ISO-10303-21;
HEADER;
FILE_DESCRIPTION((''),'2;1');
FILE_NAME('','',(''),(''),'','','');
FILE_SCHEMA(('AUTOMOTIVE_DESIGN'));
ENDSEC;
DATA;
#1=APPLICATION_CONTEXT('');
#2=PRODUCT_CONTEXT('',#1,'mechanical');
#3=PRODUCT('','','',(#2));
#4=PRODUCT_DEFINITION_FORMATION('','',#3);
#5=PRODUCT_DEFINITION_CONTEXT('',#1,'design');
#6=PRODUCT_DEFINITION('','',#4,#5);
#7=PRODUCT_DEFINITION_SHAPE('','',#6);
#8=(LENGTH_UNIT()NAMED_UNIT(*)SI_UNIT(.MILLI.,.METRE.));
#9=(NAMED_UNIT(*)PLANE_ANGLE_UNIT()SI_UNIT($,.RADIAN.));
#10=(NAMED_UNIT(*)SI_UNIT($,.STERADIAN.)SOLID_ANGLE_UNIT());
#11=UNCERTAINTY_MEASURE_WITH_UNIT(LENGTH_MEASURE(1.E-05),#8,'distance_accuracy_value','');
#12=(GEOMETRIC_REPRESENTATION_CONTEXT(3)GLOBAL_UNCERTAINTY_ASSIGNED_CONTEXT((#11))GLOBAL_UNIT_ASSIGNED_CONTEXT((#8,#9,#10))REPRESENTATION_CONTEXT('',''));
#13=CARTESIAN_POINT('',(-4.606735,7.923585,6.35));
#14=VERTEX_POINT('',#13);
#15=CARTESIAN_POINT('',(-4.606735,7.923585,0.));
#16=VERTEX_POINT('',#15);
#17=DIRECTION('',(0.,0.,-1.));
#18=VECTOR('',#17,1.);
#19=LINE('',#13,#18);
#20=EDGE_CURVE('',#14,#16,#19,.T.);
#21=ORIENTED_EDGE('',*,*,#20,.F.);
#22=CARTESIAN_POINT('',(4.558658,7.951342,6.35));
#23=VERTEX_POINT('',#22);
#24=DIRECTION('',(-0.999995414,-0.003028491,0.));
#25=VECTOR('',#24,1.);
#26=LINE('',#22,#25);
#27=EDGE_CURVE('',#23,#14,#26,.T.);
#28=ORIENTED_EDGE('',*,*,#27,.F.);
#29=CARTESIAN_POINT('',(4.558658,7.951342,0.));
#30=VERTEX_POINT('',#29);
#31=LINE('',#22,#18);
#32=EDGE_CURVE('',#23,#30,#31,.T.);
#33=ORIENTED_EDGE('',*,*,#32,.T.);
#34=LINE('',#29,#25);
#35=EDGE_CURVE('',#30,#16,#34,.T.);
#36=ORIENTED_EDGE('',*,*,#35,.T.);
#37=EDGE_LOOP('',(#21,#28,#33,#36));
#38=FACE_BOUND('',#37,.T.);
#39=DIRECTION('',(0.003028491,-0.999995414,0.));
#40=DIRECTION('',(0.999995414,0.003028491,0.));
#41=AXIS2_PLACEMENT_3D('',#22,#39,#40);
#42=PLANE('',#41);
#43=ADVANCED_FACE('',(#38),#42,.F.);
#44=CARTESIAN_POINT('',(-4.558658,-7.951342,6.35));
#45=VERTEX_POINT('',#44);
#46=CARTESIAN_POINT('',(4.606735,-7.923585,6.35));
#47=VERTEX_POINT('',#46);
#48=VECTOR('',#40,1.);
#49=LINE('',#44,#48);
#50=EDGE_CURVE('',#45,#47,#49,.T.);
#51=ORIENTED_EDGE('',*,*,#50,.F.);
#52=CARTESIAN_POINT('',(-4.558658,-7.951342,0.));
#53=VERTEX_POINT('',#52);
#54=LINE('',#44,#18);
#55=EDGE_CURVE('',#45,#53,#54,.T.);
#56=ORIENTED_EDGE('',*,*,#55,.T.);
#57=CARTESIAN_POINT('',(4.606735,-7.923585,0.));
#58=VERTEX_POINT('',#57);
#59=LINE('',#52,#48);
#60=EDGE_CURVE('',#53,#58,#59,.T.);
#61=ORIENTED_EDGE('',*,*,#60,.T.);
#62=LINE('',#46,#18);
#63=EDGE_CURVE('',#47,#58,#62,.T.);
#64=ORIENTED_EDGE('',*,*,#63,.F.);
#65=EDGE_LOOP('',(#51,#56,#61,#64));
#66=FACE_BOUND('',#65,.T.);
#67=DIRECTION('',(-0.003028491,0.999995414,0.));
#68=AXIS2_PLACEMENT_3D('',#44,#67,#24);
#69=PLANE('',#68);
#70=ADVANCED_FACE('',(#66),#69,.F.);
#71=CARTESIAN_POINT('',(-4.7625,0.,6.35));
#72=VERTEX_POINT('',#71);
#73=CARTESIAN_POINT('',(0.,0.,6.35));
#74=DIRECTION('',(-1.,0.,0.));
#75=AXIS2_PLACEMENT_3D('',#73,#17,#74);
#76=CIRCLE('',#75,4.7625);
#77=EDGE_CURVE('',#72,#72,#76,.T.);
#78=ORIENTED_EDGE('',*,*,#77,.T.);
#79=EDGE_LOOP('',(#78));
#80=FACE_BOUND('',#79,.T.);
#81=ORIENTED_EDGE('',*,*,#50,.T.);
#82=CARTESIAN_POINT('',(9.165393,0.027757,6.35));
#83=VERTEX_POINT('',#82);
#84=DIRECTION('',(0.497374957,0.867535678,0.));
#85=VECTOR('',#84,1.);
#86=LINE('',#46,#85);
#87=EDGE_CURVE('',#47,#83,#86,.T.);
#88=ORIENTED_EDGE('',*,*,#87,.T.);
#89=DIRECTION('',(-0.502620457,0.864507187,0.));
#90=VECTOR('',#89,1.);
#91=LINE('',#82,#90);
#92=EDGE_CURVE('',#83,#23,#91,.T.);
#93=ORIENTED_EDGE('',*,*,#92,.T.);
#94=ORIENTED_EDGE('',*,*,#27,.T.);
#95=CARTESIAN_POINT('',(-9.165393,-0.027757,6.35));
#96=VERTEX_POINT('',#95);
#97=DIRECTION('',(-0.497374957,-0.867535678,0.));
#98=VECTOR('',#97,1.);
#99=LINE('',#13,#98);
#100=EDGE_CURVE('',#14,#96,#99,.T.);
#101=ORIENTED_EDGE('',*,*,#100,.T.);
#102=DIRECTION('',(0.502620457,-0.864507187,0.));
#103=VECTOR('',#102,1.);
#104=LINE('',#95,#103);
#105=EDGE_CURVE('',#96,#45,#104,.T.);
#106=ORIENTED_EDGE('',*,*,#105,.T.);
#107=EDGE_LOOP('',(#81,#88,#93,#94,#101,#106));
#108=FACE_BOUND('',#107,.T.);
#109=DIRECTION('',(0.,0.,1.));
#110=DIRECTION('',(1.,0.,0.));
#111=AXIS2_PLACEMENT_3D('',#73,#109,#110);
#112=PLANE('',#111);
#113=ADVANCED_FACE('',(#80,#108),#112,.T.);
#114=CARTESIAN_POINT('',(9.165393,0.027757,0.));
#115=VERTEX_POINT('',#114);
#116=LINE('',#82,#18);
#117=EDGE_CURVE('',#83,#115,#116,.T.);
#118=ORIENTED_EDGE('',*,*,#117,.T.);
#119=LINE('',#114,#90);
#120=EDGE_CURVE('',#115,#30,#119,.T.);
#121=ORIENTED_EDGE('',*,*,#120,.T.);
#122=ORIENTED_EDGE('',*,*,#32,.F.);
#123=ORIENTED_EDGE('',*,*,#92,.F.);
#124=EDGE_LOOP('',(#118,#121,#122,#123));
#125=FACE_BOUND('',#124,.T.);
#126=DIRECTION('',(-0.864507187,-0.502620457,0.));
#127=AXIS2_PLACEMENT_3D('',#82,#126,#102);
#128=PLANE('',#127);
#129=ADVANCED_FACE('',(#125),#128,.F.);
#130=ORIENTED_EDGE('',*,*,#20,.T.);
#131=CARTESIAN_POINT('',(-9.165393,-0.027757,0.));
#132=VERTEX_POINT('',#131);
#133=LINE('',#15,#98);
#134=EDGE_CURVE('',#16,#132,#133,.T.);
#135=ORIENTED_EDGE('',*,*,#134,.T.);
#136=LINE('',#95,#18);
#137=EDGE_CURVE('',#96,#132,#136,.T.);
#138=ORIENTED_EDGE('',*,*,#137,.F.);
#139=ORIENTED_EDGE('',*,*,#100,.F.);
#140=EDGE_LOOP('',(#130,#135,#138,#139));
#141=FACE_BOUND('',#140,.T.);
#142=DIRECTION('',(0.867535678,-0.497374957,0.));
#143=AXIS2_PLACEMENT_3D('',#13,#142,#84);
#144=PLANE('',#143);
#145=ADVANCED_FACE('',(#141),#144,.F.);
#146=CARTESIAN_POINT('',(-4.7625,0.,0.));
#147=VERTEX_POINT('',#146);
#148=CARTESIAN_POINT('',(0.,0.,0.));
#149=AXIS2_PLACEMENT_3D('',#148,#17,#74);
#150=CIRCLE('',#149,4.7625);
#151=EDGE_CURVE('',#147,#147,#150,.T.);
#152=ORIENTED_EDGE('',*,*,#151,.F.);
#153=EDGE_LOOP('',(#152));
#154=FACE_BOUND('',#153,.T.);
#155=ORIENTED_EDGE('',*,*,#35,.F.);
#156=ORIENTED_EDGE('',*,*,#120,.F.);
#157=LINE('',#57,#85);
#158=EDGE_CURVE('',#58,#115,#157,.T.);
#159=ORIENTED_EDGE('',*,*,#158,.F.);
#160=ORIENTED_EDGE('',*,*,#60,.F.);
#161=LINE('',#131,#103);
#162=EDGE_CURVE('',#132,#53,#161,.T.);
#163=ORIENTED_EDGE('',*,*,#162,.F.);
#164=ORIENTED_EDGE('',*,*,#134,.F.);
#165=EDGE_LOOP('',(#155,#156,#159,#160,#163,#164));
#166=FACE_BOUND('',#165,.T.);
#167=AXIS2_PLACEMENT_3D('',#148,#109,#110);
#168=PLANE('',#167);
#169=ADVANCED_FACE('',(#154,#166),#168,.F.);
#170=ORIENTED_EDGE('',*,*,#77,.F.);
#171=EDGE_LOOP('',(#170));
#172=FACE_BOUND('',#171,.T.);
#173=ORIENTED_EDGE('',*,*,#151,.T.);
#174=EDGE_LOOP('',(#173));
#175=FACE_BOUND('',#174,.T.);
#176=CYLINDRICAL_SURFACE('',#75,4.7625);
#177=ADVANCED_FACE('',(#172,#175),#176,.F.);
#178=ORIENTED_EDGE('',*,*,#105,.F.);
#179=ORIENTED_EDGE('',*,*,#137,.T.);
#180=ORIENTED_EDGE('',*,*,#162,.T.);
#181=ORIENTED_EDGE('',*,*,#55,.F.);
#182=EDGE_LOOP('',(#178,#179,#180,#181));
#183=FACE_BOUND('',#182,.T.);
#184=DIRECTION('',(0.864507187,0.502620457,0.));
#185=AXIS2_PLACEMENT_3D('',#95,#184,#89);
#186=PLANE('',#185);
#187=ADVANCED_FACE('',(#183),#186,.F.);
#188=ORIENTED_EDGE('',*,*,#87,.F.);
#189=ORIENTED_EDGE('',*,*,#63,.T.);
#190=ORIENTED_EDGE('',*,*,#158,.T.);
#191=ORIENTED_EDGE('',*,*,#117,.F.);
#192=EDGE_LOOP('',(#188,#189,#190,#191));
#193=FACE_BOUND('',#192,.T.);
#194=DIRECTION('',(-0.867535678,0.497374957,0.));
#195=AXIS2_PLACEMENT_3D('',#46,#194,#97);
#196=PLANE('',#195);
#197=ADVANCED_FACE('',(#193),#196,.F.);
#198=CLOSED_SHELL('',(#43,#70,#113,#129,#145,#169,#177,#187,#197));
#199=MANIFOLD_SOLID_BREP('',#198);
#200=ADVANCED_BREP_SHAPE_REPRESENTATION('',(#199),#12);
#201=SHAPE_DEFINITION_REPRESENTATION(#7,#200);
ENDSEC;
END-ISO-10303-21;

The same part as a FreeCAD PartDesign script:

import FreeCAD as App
import Part
import Sketcher
Q = App.Units.Quantity


def add_polygon(sketch, points):
    """Adds a closed chain of lines whose ends are joined by coincident constraints."""
    first, n = sketch.GeometryCount, len(points)
    for a, b in zip(points, points[1:] + points[:1]):
        sketch.addGeometry(Part.LineSegment(App.Vector(*a, 0), App.Vector(*b, 0)), False)
    for i in range(n):
        sketch.addConstraint(Sketcher.Constraint("Coincident", first + i, 2, first + (i + 1) % n, 1))

doc = App.newDocument("Part")
body = doc.addObject("PartDesign::Body", "Body")

sketch1 = body.newObject("Sketcher::SketchObject", "Sketch")
sketch1.AttachmentSupport = (doc.getObject("XY_Plane"), [""])
sketch1.MapMode = "FlatFace"
add_polygon(sketch1, [(4.606735, -7.923585), (9.165393, 0.027757), (4.558658, 7.951342), (-4.606735, 7.923585), (-9.165393, -0.027757), (-4.558658, -7.951342)])
sketch1.addConstraint(Sketcher.Constraint("Symmetric", 0, 2, 3, 2, -1, 1))
sketch1.addConstraint(Sketcher.Constraint("Symmetric", 1, 2, 4, 2, -1, 1))
sketch1.addConstraint(Sketcher.Constraint("Symmetric", 2, 2, 5, 2, -1, 1))
sketch1.addConstraint(Sketcher.Constraint("Equal", 0, 1))
sketch1.addConstraint(Sketcher.Constraint("Equal", 1, 2))
sketch1.addConstraint(Sketcher.Constraint("DistanceY", 3, 2, 1, 2, Q("7.9791 mm")))
sketch1.addConstraint(Sketcher.Constraint("DistanceX", -1, 1, 1, 2, Q("4.558658 mm")))
sketch1.addConstraint(Sketcher.Constraint("DistanceX", 2, 2, 0, 2, Q("13.772129 mm")))
sketch1.addConstraint(Sketcher.Constraint("DistanceX", 3, 2, 2, 2, Q("4.558658 mm")))
pad1 = body.newObject("PartDesign::Pad", "Pad")
pad1.Profile = sketch1
pad1.Length = Q("0.25 in")

sketch2 = body.newObject("Sketcher::SketchObject", "Sketch001")
sketch2.AttachmentSupport = (doc.getObject("XY_Plane"), [""])
sketch2.MapMode = "FlatFace"
sketch2.addGeometry(Part.Circle(App.Vector(0, 0, 0), App.Vector(0, 0, 1), 4.7625), False)
sketch2.addConstraint(Sketcher.Constraint("Coincident", 0, 3, -1, 1))
sketch2.addConstraint(Sketcher.Constraint("Diameter", 0, Q("0.375 in")))
pocket1 = body.newObject("PartDesign::Pocket", "Pocket")
pocket1.Profile = sketch2
pocket1.Type = "ThroughAll"
pocket1.Reversed = True

doc.recompute()
